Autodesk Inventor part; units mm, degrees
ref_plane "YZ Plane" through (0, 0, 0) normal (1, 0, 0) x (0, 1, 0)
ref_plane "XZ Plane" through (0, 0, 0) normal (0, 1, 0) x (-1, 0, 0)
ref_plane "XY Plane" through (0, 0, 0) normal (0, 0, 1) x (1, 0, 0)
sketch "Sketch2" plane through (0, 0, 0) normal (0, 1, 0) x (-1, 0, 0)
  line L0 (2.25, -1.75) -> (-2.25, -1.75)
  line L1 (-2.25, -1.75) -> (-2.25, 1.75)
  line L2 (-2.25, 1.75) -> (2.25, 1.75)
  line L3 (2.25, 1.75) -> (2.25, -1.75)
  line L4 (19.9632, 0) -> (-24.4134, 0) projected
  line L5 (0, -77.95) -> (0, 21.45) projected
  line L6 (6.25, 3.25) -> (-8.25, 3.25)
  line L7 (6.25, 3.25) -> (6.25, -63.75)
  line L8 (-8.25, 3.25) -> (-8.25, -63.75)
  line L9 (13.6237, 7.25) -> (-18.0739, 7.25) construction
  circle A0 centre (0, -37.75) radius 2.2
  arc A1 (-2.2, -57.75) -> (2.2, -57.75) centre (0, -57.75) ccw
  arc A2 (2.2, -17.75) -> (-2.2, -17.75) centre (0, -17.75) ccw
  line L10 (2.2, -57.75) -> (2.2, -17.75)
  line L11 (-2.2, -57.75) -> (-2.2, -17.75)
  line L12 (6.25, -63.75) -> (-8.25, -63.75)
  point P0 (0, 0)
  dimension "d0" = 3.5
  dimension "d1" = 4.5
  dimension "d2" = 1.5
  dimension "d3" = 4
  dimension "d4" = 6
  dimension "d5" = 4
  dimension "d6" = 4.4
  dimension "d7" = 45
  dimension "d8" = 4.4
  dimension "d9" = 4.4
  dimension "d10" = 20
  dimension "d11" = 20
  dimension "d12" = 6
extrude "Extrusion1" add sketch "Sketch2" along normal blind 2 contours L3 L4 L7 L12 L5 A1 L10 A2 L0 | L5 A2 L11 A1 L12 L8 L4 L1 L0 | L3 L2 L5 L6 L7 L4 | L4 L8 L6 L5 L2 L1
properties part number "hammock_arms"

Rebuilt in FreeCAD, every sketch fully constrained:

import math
import FreeCAD as App
import Part
import Sketcher

V = App.Vector
Q = App.Units.Quantity

doc = App.newDocument("Part")
body = doc.addObject("PartDesign::Body", "Body")

# Sketch on XZ plane
sketch1 = doc.addObject("Sketcher::SketchObject", "Sketch")
body.addObject(sketch1)
sketch1.AttachmentSupport = (doc.XZ_Plane, [""])
sketch1.MapMode = "FlatFace"
sketch1.addGeometry([
    Part.LineSegment(V(-6.2, -63.8, 0), V(-6.2, 3.2, 0)),  # 0
    Part.LineSegment(V(-6.2, 3.2, 0), V(8.2, 3.2, 0)),  # 1
    Part.LineSegment(V(8.2, 3.2, 0), V(8.2, -63.8, 0)),  # 2
    Part.LineSegment(V(8.2, -63.8, 0), V(-6.2, -63.8, 0)),  # 3
    Part.LineSegment(V(-2.2, -1.8, 0), V(2.2, -1.8, 0)),  # 4
    Part.LineSegment(V(2.2, -1.8, 0), V(2.2, 1.8, 0)),  # 5
    Part.LineSegment(V(2.2, 1.8, 0), V(-2.2, 1.8, 0)),  # 6
    Part.LineSegment(V(-2.2, 1.8, 0), V(-2.2, -1.8, 0)),  # 7
    Part.ArcOfCircle(Part.Circle(V(0, -57.8, 0), V(0, 0, 1), 2.2), math.radians(180), math.radians(360)),  # 8
    Part.LineSegment(V(2.2, -57.8, 0), V(2.2, -17.8, 0)),  # 9
    Part.ArcOfCircle(Part.Circle(V(0, -17.8, 0), V(0, 0, 1), 2.2), math.radians(0), math.radians(180)),  # 10
    Part.LineSegment(V(-2.2, -17.8, 0), V(-2.2, -57.8, 0)),  # 11
], False)
sketch1.addConstraint([
    Sketcher.Constraint("Coincident", 0, 2, 1, 1),
    Sketcher.Constraint("Coincident", 1, 2, 2, 1),
    Sketcher.Constraint("Coincident", 2, 2, 3, 1),
    Sketcher.Constraint("Coincident", 3, 2, 0, 1),
    Sketcher.Constraint("Coincident", 4, 2, 5, 1),
    Sketcher.Constraint("Coincident", 5, 2, 6, 1),
    Sketcher.Constraint("Coincident", 6, 2, 7, 1),
    Sketcher.Constraint("Coincident", 7, 2, 4, 1),
    Sketcher.Constraint("Tangent", 8, 2, 9, 1),
    Sketcher.Constraint("Tangent", 9, 2, 10, 1),
    Sketcher.Constraint("Tangent", 10, 2, 11, 1),
    Sketcher.Constraint("Tangent", 11, 2, 8, 1),
    Sketcher.Constraint("Vertical", 0),
    Sketcher.Constraint("Horizontal", 1),
    Sketcher.Constraint("Vertical", 2),
    Sketcher.Constraint("Horizontal", 3),
    Sketcher.Constraint("Horizontal", 4),
    Sketcher.Constraint("Vertical", 5),
    Sketcher.Constraint("Horizontal", 6),
    Sketcher.Constraint("Vertical", 7),
    Sketcher.Constraint("Vertical", 9),
    Sketcher.Constraint("Vertical", 11),
    Sketcher.Constraint("Symmetric", 4, 2, 6, 2, -1, 1),
    Sketcher.Constraint("PointOnObject", 8, 3, -2),
    Sketcher.Constraint("Radius", 8, Q("2.2 mm")),
    Sketcher.Constraint("DistanceX", 4, 1, 4, 2, Q("4.5 mm")),
    Sketcher.Constraint("DistanceY", 5, 1, 5, 2, Q("3.5 mm")),
    Sketcher.Constraint("DistanceY", 2, 2, 8, 3, Q("6 mm")),
    Sketcher.Constraint("DistanceX", 4, 2, 1, 2, Q("6 mm")),
    Sketcher.Constraint("DistanceX", 0, 2, 6, 2, Q("4 mm")),
    Sketcher.Constraint("DistanceY", 5, 2, 1, 2, Q("1.5 mm")),
    Sketcher.Constraint("DistanceY", 0, 1, 0, 2, Q("67 mm")),
    Sketcher.Constraint("DistanceY", 9, 1, 9, 2, Q("40 mm")),
])
pad1 = doc.addObject("PartDesign::Pad", "Pad")
body.addObject(pad1)
pad1.Profile = sketch1
pad1.Length = 2
pad1.Reversed = True

doc.recompute()
